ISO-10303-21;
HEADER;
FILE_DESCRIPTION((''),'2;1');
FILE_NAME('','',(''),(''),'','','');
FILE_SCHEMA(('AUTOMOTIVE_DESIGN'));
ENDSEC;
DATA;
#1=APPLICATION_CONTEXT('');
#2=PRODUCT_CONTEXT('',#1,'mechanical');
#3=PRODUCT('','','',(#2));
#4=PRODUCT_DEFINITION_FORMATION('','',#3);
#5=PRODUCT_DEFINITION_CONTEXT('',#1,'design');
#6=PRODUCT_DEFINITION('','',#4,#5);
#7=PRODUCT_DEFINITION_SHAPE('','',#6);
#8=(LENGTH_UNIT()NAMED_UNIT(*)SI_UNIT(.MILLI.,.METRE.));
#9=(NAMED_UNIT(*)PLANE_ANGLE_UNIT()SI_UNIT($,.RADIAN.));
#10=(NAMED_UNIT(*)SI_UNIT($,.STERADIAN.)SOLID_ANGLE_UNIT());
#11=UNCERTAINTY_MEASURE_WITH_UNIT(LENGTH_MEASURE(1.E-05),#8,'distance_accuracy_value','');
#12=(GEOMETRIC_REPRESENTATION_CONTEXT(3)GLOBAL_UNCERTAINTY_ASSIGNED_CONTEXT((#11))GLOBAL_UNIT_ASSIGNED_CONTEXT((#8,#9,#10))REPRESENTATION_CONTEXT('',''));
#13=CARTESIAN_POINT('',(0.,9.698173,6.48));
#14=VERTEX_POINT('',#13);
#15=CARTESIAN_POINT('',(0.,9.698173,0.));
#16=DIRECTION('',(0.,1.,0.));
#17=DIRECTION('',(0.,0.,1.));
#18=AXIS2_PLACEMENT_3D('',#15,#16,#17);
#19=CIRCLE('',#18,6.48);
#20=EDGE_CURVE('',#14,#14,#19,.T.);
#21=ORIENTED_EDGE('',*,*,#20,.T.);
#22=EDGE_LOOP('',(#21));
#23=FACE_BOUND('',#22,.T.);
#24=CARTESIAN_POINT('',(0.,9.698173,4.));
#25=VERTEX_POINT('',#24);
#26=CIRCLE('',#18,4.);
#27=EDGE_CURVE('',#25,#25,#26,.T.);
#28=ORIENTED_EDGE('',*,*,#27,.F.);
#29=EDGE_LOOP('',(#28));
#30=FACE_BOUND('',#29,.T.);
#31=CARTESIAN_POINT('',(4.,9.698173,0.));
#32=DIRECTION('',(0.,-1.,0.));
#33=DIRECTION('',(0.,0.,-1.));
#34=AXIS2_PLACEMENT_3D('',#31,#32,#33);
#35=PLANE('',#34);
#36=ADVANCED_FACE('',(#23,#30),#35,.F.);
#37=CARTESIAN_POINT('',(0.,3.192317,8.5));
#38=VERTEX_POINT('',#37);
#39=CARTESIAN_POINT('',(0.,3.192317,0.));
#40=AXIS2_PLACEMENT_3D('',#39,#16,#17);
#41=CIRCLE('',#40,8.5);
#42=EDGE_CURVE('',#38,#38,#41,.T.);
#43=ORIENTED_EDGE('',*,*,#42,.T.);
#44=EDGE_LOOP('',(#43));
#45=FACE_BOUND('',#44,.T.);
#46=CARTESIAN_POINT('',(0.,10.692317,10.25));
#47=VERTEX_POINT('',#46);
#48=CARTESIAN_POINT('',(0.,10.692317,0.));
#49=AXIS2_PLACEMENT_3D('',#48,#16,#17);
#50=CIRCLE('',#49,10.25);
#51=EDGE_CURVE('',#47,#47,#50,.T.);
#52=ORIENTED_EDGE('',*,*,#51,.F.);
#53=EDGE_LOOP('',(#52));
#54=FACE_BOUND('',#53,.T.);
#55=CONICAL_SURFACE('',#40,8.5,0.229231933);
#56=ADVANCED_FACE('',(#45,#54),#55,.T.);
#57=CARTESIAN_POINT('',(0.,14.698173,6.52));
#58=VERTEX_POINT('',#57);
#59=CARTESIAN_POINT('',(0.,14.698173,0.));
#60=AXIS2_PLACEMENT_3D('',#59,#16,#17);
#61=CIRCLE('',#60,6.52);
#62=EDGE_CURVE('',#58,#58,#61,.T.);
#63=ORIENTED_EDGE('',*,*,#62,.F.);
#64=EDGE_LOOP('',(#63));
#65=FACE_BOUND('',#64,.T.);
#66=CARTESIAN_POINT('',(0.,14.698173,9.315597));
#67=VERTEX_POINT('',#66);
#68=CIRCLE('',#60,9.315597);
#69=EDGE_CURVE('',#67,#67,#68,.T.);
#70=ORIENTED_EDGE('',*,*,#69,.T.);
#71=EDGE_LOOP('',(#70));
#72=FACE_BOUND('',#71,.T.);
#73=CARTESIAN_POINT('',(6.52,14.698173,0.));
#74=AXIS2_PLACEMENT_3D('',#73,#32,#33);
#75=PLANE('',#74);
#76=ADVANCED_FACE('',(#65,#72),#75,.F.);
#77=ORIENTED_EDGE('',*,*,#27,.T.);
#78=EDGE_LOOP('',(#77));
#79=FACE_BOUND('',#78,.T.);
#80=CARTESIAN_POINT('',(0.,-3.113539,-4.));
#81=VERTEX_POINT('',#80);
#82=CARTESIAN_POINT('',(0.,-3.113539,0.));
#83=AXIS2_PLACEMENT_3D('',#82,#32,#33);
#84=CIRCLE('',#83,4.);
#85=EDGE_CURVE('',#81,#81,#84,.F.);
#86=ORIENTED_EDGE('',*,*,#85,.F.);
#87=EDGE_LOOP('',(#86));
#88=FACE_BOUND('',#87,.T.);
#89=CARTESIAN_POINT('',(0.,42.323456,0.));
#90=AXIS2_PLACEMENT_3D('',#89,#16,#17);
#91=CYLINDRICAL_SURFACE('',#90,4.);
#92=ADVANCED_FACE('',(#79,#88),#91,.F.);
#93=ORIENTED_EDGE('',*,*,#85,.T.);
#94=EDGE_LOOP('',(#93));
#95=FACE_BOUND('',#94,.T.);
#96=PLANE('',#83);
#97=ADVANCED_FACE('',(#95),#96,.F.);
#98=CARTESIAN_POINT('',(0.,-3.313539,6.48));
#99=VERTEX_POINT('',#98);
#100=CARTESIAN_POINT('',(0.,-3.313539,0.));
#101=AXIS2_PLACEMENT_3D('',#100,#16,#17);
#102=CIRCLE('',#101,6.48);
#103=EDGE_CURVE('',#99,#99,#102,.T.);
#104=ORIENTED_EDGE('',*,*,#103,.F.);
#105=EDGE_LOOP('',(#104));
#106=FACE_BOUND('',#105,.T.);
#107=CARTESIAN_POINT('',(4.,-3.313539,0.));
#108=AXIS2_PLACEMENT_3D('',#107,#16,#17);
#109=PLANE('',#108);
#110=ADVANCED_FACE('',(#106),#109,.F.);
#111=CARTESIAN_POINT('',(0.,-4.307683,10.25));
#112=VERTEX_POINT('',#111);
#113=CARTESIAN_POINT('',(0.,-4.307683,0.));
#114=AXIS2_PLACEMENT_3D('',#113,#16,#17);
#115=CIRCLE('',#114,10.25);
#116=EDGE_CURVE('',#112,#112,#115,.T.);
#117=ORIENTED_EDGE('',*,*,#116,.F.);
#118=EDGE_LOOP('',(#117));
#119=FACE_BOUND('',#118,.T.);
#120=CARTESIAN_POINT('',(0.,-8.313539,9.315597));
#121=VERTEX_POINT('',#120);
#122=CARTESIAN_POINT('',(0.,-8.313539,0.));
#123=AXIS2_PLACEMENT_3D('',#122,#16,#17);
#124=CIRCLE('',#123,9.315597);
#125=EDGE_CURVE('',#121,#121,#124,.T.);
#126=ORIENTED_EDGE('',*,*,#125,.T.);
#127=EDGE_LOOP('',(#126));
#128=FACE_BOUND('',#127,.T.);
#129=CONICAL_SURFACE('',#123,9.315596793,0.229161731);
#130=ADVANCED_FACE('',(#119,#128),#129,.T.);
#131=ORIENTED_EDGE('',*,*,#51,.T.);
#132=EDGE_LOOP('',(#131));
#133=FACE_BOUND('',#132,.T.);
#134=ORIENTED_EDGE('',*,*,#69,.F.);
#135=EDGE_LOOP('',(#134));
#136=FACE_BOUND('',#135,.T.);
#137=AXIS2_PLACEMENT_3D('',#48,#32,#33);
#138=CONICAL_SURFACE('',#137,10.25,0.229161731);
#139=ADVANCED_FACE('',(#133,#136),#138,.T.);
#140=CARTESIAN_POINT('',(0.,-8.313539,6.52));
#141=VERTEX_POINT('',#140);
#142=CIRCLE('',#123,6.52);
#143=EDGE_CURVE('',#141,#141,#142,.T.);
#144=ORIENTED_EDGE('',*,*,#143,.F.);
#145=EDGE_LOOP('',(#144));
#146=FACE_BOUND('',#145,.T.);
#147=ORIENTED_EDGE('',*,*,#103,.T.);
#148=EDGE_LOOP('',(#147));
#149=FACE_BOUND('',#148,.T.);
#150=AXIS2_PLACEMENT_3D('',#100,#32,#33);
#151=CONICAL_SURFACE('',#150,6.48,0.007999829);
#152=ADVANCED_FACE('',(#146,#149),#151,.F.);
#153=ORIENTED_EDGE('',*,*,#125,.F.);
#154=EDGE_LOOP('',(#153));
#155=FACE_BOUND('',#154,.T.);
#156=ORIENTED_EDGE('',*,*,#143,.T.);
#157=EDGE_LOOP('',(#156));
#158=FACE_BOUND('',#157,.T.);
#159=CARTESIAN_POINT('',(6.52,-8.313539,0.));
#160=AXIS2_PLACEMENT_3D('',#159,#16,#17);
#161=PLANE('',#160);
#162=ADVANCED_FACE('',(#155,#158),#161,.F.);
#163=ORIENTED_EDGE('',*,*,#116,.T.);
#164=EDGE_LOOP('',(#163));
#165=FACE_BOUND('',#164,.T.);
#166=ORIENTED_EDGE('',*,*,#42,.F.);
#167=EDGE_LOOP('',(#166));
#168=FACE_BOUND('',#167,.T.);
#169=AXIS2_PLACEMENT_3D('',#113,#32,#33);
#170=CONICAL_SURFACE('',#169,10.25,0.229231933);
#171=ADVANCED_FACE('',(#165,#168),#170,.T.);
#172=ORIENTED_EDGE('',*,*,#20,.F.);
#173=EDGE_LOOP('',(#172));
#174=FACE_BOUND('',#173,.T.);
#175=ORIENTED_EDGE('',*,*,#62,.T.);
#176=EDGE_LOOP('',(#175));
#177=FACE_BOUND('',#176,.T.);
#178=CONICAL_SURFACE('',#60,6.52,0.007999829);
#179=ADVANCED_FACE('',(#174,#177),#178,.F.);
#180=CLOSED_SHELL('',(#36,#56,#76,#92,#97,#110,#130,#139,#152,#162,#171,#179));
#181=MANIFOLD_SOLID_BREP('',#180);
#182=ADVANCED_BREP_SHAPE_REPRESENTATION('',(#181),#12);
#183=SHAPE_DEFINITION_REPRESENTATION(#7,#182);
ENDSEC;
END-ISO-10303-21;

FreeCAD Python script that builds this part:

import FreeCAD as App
import Part
import Sketcher

V = App.Vector
Q = App.Units.Quantity

doc = App.newDocument("Part")
body = doc.addObject("PartDesign::Body", "Body")

# Sketch on XY plane
sketch1 = body.newObject("Sketcher::SketchObject", "Sketch")
sketch1.AttachmentSupport = (doc.getObject("XY_Plane"), [""])
sketch1.MapMode = "FlatFace"
sketch1.addGeometry([
    Part.LineSegment(V(4, 9.7, 0), V(4, -3.3, 0)),  # 0
    Part.LineSegment(V(4, -3.3, 0), V(6.5, -3.3, 0)),  # 1
    Part.LineSegment(V(6.5, -3.3, 0), V(6.5, -8.3, 0)),  # 2
    Part.LineSegment(V(6.5, -8.3, 0), V(9.3, -8.3, 0)),  # 3
    Part.LineSegment(V(9.3, -8.3, 0), V(10.2, -4.3, 0)),  # 4
    Part.LineSegment(V(10.2, -4.3, 0), V(8.5, 3.2, 0)),  # 5
    Part.LineSegment(V(8.5, 3.2, 0), V(10.2, 10.7, 0)),  # 6
    Part.LineSegment(V(10.2, 10.7, 0), V(9.3, 14.7, 0)),  # 7
    Part.LineSegment(V(9.3, 14.7, 0), V(6.5, 14.7, 0)),  # 8
    Part.LineSegment(V(6.5, 14.7, 0), V(6.5, 9.7, 0)),  # 9
    Part.LineSegment(V(6.5, 9.7, 0), V(4, 9.7, 0)),  # 10
], False)
sketch1.addConstraint([
    Sketcher.Constraint("Coincident", 0, 2, 1, 1),
    Sketcher.Constraint("Coincident", 1, 2, 2, 1),
    Sketcher.Constraint("Coincident", 2, 2, 3, 1),
    Sketcher.Constraint("Coincident", 3, 2, 4, 1),
    Sketcher.Constraint("Coincident", 4, 2, 5, 1),
    Sketcher.Constraint("Coincident", 5, 2, 6, 1),
    Sketcher.Constraint("Coincident", 6, 2, 7, 1),
    Sketcher.Constraint("Coincident", 7, 2, 8, 1),
    Sketcher.Constraint("Coincident", 8, 2, 9, 1),
    Sketcher.Constraint("Coincident", 9, 2, 10, 1),
    Sketcher.Constraint("Coincident", 10, 2, 0, 1),
    Sketcher.Constraint("Vertical", 0),
    Sketcher.Constraint("Horizontal", 1),
    Sketcher.Constraint("Horizontal", 3),
    Sketcher.Constraint("Horizontal", 8),
    Sketcher.Constraint("Horizontal", 10),
    Sketcher.Constraint("Vertical", 4, 2, 6, 2),
    Sketcher.Constraint("Vertical", 3, 2, 7, 2),
    Sketcher.Constraint("Vertical", 2, 2, 8, 2),
    Sketcher.Constraint("Vertical", 1, 2, 9, 2),
    Sketcher.Constraint("Equal", 5, 6),
    Sketcher.Constraint("Equal", 4, 7),
    Sketcher.Constraint("Equal", 2, 9),
    Sketcher.Constraint("DistanceX", -1, 1, 0, 2, 4.0),
    Sketcher.Constraint("DistanceY", 2, 2, 1, 2, 5.0),
    Sketcher.Constraint("DistanceY", 4, 2, 6, 2, 15.0),
    Sketcher.Constraint("DistanceX", 1, 1, 1, 2, 2.48),
    Sketcher.Constraint("DistanceX", -1, 1, 5, 2, 8.5),
    Sketcher.Constraint("Angle", 4, Q("76.87 deg")),
    Sketcher.Constraint("DistanceX", -1, 1, 2, 2, 6.52),
    Sketcher.Constraint("DistanceX", -1, 1, 4, 2, 10.25),
    Sketcher.Constraint("Distance", 4, 4.113392),
    Sketcher.Constraint("DistanceY", 0, 2, -1, 1, 3.313539),
])
revolution = body.newObject("PartDesign::Revolution", "Revolution")
revolution.Profile = sketch1
revolution.ReferenceAxis = (sketch1, ["V_Axis"])
revolution.Angle = 360

# Sketch on XZ plane
sketch2 = body.newObject("Sketcher::SketchObject", "Sketch001")
sketch2.AttachmentSupport = (doc.getObject("XZ_Plane"), [""])
sketch2.MapMode = "FlatFace"
sketch2.AttachmentOffset = App.Placement(V(0, 0, 3.313539), App.Rotation())
sketch2.addGeometry(Part.Circle(V(0, 0, 0), V(0, 0, 1), 4), False)
sketch2.addConstraint([
    Sketcher.Constraint("Coincident", 0, 3, -1, 1),
    Sketcher.Constraint("Diameter", 0, 8.0),
])
pad1 = body.newObject("PartDesign::Pad", "Pad")
pad1.Profile = sketch2
pad1.Length = 0.2
pad1.Reversed = True

doc.recompute()
